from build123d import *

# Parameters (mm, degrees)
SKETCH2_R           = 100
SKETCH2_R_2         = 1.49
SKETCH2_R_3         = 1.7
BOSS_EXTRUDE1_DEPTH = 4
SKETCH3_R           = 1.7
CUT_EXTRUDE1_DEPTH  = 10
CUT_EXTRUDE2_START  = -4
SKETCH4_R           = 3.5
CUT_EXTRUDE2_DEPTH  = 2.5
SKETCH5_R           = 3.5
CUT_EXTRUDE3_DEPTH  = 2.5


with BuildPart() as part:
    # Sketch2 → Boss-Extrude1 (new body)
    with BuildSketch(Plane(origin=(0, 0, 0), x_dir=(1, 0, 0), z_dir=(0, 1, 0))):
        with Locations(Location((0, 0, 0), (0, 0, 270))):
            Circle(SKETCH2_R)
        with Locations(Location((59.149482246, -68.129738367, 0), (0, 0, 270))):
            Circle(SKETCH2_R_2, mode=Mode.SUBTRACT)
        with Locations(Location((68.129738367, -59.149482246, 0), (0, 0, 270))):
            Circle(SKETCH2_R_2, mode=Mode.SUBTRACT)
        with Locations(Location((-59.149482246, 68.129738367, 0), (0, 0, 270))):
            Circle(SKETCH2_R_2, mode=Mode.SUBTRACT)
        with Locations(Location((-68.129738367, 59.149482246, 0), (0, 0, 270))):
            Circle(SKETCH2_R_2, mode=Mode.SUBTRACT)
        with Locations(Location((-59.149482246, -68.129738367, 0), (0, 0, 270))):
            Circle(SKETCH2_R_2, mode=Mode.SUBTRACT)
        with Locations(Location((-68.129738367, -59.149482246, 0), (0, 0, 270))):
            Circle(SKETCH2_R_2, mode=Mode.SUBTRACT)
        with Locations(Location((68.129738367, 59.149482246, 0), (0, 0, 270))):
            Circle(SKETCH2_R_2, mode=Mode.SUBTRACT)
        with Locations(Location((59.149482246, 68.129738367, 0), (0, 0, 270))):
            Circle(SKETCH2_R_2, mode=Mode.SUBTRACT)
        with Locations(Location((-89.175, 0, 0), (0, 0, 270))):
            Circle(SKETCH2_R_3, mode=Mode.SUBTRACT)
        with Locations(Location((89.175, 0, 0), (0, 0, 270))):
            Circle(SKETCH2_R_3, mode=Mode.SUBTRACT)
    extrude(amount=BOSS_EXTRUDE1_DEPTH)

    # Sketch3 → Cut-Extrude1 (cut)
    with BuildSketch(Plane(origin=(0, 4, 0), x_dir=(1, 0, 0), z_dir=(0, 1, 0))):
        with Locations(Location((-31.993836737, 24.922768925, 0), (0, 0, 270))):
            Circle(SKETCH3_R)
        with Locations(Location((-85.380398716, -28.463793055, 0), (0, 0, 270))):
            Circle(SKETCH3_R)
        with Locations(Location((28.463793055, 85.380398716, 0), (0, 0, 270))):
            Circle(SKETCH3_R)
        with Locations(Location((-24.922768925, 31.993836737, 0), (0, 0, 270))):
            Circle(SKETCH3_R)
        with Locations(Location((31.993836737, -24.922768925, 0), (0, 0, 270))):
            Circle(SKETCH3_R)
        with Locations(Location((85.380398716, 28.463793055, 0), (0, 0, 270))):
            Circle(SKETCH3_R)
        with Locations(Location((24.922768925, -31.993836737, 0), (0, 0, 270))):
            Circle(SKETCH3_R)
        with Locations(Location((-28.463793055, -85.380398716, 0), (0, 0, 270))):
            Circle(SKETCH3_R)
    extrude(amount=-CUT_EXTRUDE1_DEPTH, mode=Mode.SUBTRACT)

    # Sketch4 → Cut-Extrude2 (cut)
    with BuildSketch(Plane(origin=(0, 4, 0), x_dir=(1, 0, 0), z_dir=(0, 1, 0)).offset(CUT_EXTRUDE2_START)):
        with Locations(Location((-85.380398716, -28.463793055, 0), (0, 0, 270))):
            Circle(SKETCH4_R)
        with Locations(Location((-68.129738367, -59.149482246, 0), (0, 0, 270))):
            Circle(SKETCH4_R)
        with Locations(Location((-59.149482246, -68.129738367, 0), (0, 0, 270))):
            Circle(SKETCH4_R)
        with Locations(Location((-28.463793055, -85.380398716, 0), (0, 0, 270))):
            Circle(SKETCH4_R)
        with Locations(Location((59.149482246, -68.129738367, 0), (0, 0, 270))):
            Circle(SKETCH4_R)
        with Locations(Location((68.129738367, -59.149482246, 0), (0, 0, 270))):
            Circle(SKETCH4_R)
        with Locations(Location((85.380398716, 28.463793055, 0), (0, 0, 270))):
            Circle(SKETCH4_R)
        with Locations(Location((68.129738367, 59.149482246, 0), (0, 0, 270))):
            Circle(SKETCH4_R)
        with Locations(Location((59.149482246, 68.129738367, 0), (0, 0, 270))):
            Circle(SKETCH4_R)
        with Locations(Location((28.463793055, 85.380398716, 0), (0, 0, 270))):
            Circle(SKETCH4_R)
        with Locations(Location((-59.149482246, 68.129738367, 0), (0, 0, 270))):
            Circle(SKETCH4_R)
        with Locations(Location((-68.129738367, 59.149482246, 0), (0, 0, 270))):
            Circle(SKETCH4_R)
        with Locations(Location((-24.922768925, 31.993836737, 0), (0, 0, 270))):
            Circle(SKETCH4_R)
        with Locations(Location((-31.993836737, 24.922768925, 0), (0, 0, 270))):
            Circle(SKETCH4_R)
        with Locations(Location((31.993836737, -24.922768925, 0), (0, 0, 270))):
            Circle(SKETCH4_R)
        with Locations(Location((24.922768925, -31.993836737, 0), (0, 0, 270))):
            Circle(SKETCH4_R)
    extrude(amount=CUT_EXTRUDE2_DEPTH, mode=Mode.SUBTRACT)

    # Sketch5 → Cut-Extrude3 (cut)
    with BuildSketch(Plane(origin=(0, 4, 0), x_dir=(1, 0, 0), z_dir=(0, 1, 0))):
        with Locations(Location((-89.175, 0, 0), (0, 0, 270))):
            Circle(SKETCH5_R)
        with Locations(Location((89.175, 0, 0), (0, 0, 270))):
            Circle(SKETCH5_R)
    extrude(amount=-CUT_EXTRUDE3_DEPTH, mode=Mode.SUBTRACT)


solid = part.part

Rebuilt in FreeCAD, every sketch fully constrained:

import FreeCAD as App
import Part
import Sketcher
from FreeCAD import Vector

doc = App.newDocument("Part")
body = doc.addObject("PartDesign::Body", "Body")

# Sketch on XZ plane
sketch1 = body.newObject("Sketcher::SketchObject", "Sketch")
sketch1.AttachmentSupport = (doc.getObject("XZ_Plane"), [""])
sketch1.MapMode = "FlatFace"
sketch1.addGeometry(Part.Circle(Vector(0, 0, 0), Vector(0, 0, 1), 100), False)
sketch1.addGeometry(Part.Circle(Vector(-59.149482, -68.129738, 0), Vector(0, 0, 1), 1.49), False)
sketch1.addGeometry(Part.Circle(Vector(-68.129738, -59.149482, 0), Vector(0, 0, 1), 1.49), False)
sketch1.addGeometry(Part.Circle(Vector(-89.175, 0, 0), Vector(0, 0, 1), 1.7), False)
sketch1.addGeometry(Part.Circle(Vector(-68.129738, 59.149482, 0), Vector(0, 0, 1), 1.49), False)
sketch1.addGeometry(Part.Circle(Vector(-59.149482, 68.129738, 0), Vector(0, 0, 1), 1.49), False)
sketch1.addGeometry(Part.Circle(Vector(59.149482, -68.129738, 0), Vector(0, 0, 1), 1.49), False)
sketch1.addGeometry(Part.Circle(Vector(68.129738, -59.149482, 0), Vector(0, 0, 1), 1.49), False)
sketch1.addGeometry(Part.Circle(Vector(89.175, 0, 0), Vector(0, 0, 1), 1.7), False)
sketch1.addGeometry(Part.Circle(Vector(68.129738, 59.149482, 0), Vector(0, 0, 1), 1.49), False)
sketch1.addGeometry(Part.Circle(Vector(59.149482, 68.129738, 0), Vector(0, 0, 1), 1.49), False)
sketch1.addConstraint(Sketcher.Constraint("Coincident", 0, 3, -1, 1))
sketch1.addConstraint(Sketcher.Constraint("Equal", 1, 2))
sketch1.addConstraint(Sketcher.Constraint("Equal", 2, 4))
sketch1.addConstraint(Sketcher.Constraint("Equal", 4, 5))
sketch1.addConstraint(Sketcher.Constraint("Equal", 5, 6))
sketch1.addConstraint(Sketcher.Constraint("Equal", 6, 7))
sketch1.addConstraint(Sketcher.Constraint("Equal", 3, 8))
sketch1.addConstraint(Sketcher.Constraint("Equal", 7, 9))
sketch1.addConstraint(Sketcher.Constraint("Equal", 9, 10))
sketch1.addConstraint(Sketcher.Constraint("Symmetric", 5, 3, 6, 3, -1, 1))
sketch1.addConstraint(Sketcher.Constraint("Symmetric", 4, 3, 7, 3, -1, 1))
sketch1.addConstraint(Sketcher.Constraint("Symmetric", 3, 3, 8, 3, -1, 1))
sketch1.addConstraint(Sketcher.Constraint("Symmetric", 2, 3, 9, 3, -1, 1))
sketch1.addConstraint(Sketcher.Constraint("Symmetric", 1, 3, 10, 3, -1, 1))
sketch1.addConstraint(Sketcher.Constraint("Symmetric", 1, 3, 6, 3, -2))
sketch1.addConstraint(Sketcher.Constraint("Symmetric", 2, 3, 7, 3, -2))
sketch1.addConstraint(Sketcher.Constraint("PointOnObject", 3, 3, -1))
sketch1.addConstraint(Sketcher.Constraint("Diameter", 0, 200.0))
sketch1.addConstraint(Sketcher.Constraint("Diameter", 3, 3.4))
sketch1.addConstraint(Sketcher.Constraint("Diameter", 1, 2.98))
sketch1.addConstraint(Sketcher.Constraint("DistanceX", 3, 3, -1, 1, 89.175))
sketch1.addConstraint(Sketcher.Constraint("DistanceY", 1, 3, -1, 1, 68.129738))
sketch1.addConstraint(Sketcher.Constraint("DistanceX", 2, 3, -1, 1, 68.129738))
sketch1.addConstraint(Sketcher.Constraint("DistanceY", 1, 3, 4, 3, 127.279221))
sketch1.addConstraint(Sketcher.Constraint("DistanceX", 2, 3, 6, 3, 127.279221))
pad1 = body.newObject("PartDesign::Pad", "Pad")
pad1.Profile = sketch1
pad1.Length = 4
pad1.Reversed = True

# Sketch on XZ plane
sketch2 = body.newObject("Sketcher::SketchObject", "Sketch001")
sketch2.AttachmentSupport = (doc.getObject("XZ_Plane"), [""])
sketch2.MapMode = "FlatFace"
sketch2.AttachmentOffset = App.Placement(Vector(0, 0, -4), App.Rotation())
sketch2.addGeometry(Part.Circle(Vector(-31.993837, -24.922769, 0), Vector(0, 0, 1), 1.7), False)
sketch2.addGeometry(Part.Circle(Vector(-85.380399, 28.463793, 0), Vector(0, 0, 1), 1.7), False)
sketch2.addGeometry(Part.Circle(Vector(28.463793, -85.380399, 0), Vector(0, 0, 1), 1.7), False)
sketch2.addGeometry(Part.Circle(Vector(-24.922769, -31.993837, 0), Vector(0, 0, 1), 1.7), False)
sketch2.addGeometry(Part.Circle(Vector(31.993837, 24.922769, 0), Vector(0, 0, 1), 1.7), False)
sketch2.addGeometry(Part.Circle(Vector(85.380399, -28.463793, 0), Vector(0, 0, 1), 1.7), False)
sketch2.addGeometry(Part.Circle(Vector(24.922769, 31.993837, 0), Vector(0, 0, 1), 1.7), False)
sketch2.addGeometry(Part.Circle(Vector(-28.463793, 85.380399, 0), Vector(0, 0, 1), 1.7), False)
sketch2.addConstraint(Sketcher.Constraint("Equal", 0, 1))
sketch2.addConstraint(Sketcher.Constraint("Equal", 1, 2))
sketch2.addConstraint(Sketcher.Constraint("Equal", 2, 3))
sketch2.addConstraint(Sketcher.Constraint("Equal", 3, 4))
sketch2.addConstraint(Sketcher.Constraint("Equal", 4, 5))
sketch2.addConstraint(Sketcher.Constraint("Equal", 5, 6))
sketch2.addConstraint(Sketcher.Constraint("Equal", 6, 7))
sketch2.addConstraint(Sketcher.Constraint("Symmetric", 0, 3, 4, 3, -1, 1))
sketch2.addConstraint(Sketcher.Constraint("Symmetric", 1, 3, 5, 3, -1, 1))
sketch2.addConstraint(Sketcher.Constraint("Symmetric", 3, 3, 6, 3, -1, 1))
sketch2.addConstraint(Sketcher.Constraint("Symmetric", 2, 3, 7, 3, -1, 1))
sketch2.addConstraint(Sketcher.Constraint("Diameter", 0, 3.4))
sketch2.addConstraint(Sketcher.Constraint("DistanceX", 1, 3, -1, 1, 85.380399))
sketch2.addConstraint(Sketcher.Constraint("DistanceY", 2, 3, -1, 1, 85.380399))
sketch2.addConstraint(Sketcher.Constraint("DistanceY", 0, 3, -1, 1, 24.922769))
sketch2.addConstraint(Sketcher.Constraint("DistanceX", 3, 3, -1, 1, 24.922769))
sketch2.addConstraint(Sketcher.Constraint("DistanceX", 1, 3, 0, 3, 53.386562))
sketch2.addConstraint(Sketcher.Constraint("DistanceY", 0, 3, 1, 3, 53.386562))
sketch2.addConstraint(Sketcher.Constraint("DistanceX", 0, 3, 2, 3, 60.45763))
sketch2.addConstraint(Sketcher.Constraint("DistanceY", 2, 3, 3, 3, 53.386562))
pocket1 = body.newObject("PartDesign::Pocket", "Pocket")
pocket1.Profile = sketch2
pocket1.Length = 10
pocket1.Reversed = True

# Sketch on XZ plane
sketch3 = body.newObject("Sketcher::SketchObject", "Sketch002")
sketch3.AttachmentSupport = (doc.getObject("XZ_Plane"), [""])
sketch3.MapMode = "FlatFace"
sketch3.addGeometry(Part.Circle(Vector(-85.380399, 28.463793, 0), Vector(0, 0, 1), 3.5), False)
sketch3.addGeometry(Part.Circle(Vector(-68.129738, 59.149482, 0), Vector(0, 0, 1), 3.5), False)
sketch3.addGeometry(Part.Circle(Vector(-59.149482, 68.129738, 0), Vector(0, 0, 1), 3.5), False)
sketch3.addGeometry(Part.Circle(Vector(-28.463793, 85.380399, 0), Vector(0, 0, 1), 3.5), False)
sketch3.addGeometry(Part.Circle(Vector(59.149482, 68.129738, 0), Vector(0, 0, 1), 3.5), False)
sketch3.addGeometry(Part.Circle(Vector(68.129738, 59.149482, 0), Vector(0, 0, 1), 3.5), False)
sketch3.addGeometry(Part.Circle(Vector(85.380399, -28.463793, 0), Vector(0, 0, 1), 3.5), False)
sketch3.addGeometry(Part.Circle(Vector(68.129738, -59.149482, 0), Vector(0, 0, 1), 3.5), False)
sketch3.addGeometry(Part.Circle(Vector(59.149482, -68.129738, 0), Vector(0, 0, 1), 3.5), False)
sketch3.addGeometry(Part.Circle(Vector(28.463793, -85.380399, 0), Vector(0, 0, 1), 3.5), False)
sketch3.addGeometry(Part.Circle(Vector(-59.149482, -68.129738, 0), Vector(0, 0, 1), 3.5), False)
sketch3.addGeometry(Part.Circle(Vector(-68.129738, -59.149482, 0), Vector(0, 0, 1), 3.5), False)
sketch3.addGeometry(Part.Circle(Vector(-24.922769, -31.993837, 0), Vector(0, 0, 1), 3.5), False)
sketch3.addGeometry(Part.Circle(Vector(-31.993837, -24.922769, 0), Vector(0, 0, 1), 3.5), False)
sketch3.addGeometry(Part.Circle(Vector(31.993837, 24.922769, 0), Vector(0, 0, 1), 3.5), False)
sketch3.addGeometry(Part.Circle(Vector(24.922769, 31.993837, 0), Vector(0, 0, 1), 3.5), False)
sketch3.addConstraint(Sketcher.Constraint("Equal", 0, 1))
sketch3.addConstraint(Sketcher.Constraint("Equal", 1, 2))
sketch3.addConstraint(Sketcher.Constraint("Equal", 2, 3))
sketch3.addConstraint(Sketcher.Constraint("Equal", 3, 4))
sketch3.addConstraint(Sketcher.Constraint("Equal", 4, 5))
sketch3.addConstraint(Sketcher.Constraint("Equal", 5, 6))
sketch3.addConstraint(Sketcher.Constraint("Equal", 6, 7))
sketch3.addConstraint(Sketcher.Constraint("Equal", 7, 8))
sketch3.addConstraint(Sketcher.Constraint("Equal", 8, 9))
sketch3.addConstraint(Sketcher.Constraint("Equal", 9, 10))
sketch3.addConstraint(Sketcher.Constraint("Equal", 10, 11))
sketch3.addConstraint(Sketcher.Constraint("Equal", 11, 12))
sketch3.addConstraint(Sketcher.Constraint("Equal", 12, 13))
sketch3.addConstraint(Sketcher.Constraint("Equal", 13, 14))
sketch3.addConstraint(Sketcher.Constraint("Equal", 14, 15))
sketch3.addConstraint(Sketcher.Constraint("Symmetric", 0, 3, 6, 3, -1, 1))
sketch3.addConstraint(Sketcher.Constraint("Symmetric", 1, 3, 7, 3, -1, 1))
sketch3.addConstraint(Sketcher.Constraint("Symmetric", 2, 3, 8, 3, -1, 1))
sketch3.addConstraint(Sketcher.Constraint("Symmetric", 3, 3, 9, 3, -1, 1))
sketch3.addConstraint(Sketcher.Constraint("Symmetric", 4, 3, 10, 3, -1, 1))
sketch3.addConstraint(Sketcher.Constraint("Symmetric", 5, 3, 11, 3, -1, 1))
sketch3.addConstraint(Sketcher.Constraint("Symmetric", 13, 3, 14, 3, -1, 1))
sketch3.addConstraint(Sketcher.Constraint("Symmetric", 12, 3, 15, 3, -1, 1))
sketch3.addConstraint(Sketcher.Constraint("Symmetric", 2, 3, 4, 3, -2))
sketch3.addConstraint(Sketcher.Constraint("Symmetric", 1, 3, 5, 3, -2))
sketch3.addConstraint(Sketcher.Constraint("Diameter", 0, 7.0))
sketch3.addConstraint(Sketcher.Constraint("DistanceX", 0, 3, -1, 1, 85.380399))
sketch3.addConstraint(Sketcher.Constraint("DistanceY", -1, 1, 3, 3, 85.380399))
sketch3.addConstraint(Sketcher.Constraint("DistanceY", 10, 3, 12, 3, 36.135902))
sketch3.addConstraint(Sketcher.Constraint("DistanceX", 11, 3, 13, 3, 36.135902))
sketch3.addConstraint(Sketcher.Constraint("DistanceX", 1, 3, -1, 1, 68.129738))
sketch3.addConstraint(Sketcher.Constraint("DistanceY", -1, 1, 2, 3, 68.129738))
sketch3.addConstraint(Sketcher.Constraint("DistanceX", 12, 3, -1, 1, 24.922769))
sketch3.addConstraint(Sketcher.Constraint("DistanceY", 13, 3, -1, 1, 24.922769))
sketch3.addConstraint(Sketcher.Constraint("DistanceY", 0, 3, 1, 3, 30.685689))
sketch3.addConstraint(Sketcher.Constraint("DistanceX", 2, 3, 3, 3, 30.685689))
sketch3.addConstraint(Sketcher.Constraint("DistanceX", 1, 3, 4, 3, 127.279221))
sketch3.addConstraint(Sketcher.Constraint("DistanceY", 6, 3, 4, 3, 96.593531))
pocket2 = body.newObject("PartDesign::Pocket", "Pocket001")
pocket2.Profile = sketch3
pocket2.Length = 2.5

# Sketch on XZ plane
sketch4 = body.newObject("Sketcher::SketchObject", "Sketch003")
sketch4.AttachmentSupport = (doc.getObject("XZ_Plane"), [""])
sketch4.MapMode = "FlatFace"
sketch4.AttachmentOffset = App.Placement(Vector(0, 0, -4), App.Rotation())
sketch4.addGeometry(Part.Circle(Vector(-89.175, 0, 0), Vector(0, 0, 1), 3.5), False)
sketch4.addGeometry(Part.Circle(Vector(89.175, 0, 0), Vector(0, 0, 1), 3.5), False)
sketch4.addConstraint(Sketcher.Constraint("Equal", 0, 1))
sketch4.addConstraint(Sketcher.Constraint("Symmetric", 0, 3, 1, 3, -1, 1))
sketch4.addConstraint(Sketcher.Constraint("PointOnObject", 0, 3, -1))
sketch4.addConstraint(Sketcher.Constraint("Diameter", 0, 7.0))
sketch4.addConstraint(Sketcher.Constraint("DistanceX", 0, 3, 1, 3, 178.35))
pocket3 = body.newObject("PartDesign::Pocket", "Pocket002")
pocket3.Profile = sketch4
pocket3.Length = 2.5
pocket3.Reversed = True

doc.recompute()
